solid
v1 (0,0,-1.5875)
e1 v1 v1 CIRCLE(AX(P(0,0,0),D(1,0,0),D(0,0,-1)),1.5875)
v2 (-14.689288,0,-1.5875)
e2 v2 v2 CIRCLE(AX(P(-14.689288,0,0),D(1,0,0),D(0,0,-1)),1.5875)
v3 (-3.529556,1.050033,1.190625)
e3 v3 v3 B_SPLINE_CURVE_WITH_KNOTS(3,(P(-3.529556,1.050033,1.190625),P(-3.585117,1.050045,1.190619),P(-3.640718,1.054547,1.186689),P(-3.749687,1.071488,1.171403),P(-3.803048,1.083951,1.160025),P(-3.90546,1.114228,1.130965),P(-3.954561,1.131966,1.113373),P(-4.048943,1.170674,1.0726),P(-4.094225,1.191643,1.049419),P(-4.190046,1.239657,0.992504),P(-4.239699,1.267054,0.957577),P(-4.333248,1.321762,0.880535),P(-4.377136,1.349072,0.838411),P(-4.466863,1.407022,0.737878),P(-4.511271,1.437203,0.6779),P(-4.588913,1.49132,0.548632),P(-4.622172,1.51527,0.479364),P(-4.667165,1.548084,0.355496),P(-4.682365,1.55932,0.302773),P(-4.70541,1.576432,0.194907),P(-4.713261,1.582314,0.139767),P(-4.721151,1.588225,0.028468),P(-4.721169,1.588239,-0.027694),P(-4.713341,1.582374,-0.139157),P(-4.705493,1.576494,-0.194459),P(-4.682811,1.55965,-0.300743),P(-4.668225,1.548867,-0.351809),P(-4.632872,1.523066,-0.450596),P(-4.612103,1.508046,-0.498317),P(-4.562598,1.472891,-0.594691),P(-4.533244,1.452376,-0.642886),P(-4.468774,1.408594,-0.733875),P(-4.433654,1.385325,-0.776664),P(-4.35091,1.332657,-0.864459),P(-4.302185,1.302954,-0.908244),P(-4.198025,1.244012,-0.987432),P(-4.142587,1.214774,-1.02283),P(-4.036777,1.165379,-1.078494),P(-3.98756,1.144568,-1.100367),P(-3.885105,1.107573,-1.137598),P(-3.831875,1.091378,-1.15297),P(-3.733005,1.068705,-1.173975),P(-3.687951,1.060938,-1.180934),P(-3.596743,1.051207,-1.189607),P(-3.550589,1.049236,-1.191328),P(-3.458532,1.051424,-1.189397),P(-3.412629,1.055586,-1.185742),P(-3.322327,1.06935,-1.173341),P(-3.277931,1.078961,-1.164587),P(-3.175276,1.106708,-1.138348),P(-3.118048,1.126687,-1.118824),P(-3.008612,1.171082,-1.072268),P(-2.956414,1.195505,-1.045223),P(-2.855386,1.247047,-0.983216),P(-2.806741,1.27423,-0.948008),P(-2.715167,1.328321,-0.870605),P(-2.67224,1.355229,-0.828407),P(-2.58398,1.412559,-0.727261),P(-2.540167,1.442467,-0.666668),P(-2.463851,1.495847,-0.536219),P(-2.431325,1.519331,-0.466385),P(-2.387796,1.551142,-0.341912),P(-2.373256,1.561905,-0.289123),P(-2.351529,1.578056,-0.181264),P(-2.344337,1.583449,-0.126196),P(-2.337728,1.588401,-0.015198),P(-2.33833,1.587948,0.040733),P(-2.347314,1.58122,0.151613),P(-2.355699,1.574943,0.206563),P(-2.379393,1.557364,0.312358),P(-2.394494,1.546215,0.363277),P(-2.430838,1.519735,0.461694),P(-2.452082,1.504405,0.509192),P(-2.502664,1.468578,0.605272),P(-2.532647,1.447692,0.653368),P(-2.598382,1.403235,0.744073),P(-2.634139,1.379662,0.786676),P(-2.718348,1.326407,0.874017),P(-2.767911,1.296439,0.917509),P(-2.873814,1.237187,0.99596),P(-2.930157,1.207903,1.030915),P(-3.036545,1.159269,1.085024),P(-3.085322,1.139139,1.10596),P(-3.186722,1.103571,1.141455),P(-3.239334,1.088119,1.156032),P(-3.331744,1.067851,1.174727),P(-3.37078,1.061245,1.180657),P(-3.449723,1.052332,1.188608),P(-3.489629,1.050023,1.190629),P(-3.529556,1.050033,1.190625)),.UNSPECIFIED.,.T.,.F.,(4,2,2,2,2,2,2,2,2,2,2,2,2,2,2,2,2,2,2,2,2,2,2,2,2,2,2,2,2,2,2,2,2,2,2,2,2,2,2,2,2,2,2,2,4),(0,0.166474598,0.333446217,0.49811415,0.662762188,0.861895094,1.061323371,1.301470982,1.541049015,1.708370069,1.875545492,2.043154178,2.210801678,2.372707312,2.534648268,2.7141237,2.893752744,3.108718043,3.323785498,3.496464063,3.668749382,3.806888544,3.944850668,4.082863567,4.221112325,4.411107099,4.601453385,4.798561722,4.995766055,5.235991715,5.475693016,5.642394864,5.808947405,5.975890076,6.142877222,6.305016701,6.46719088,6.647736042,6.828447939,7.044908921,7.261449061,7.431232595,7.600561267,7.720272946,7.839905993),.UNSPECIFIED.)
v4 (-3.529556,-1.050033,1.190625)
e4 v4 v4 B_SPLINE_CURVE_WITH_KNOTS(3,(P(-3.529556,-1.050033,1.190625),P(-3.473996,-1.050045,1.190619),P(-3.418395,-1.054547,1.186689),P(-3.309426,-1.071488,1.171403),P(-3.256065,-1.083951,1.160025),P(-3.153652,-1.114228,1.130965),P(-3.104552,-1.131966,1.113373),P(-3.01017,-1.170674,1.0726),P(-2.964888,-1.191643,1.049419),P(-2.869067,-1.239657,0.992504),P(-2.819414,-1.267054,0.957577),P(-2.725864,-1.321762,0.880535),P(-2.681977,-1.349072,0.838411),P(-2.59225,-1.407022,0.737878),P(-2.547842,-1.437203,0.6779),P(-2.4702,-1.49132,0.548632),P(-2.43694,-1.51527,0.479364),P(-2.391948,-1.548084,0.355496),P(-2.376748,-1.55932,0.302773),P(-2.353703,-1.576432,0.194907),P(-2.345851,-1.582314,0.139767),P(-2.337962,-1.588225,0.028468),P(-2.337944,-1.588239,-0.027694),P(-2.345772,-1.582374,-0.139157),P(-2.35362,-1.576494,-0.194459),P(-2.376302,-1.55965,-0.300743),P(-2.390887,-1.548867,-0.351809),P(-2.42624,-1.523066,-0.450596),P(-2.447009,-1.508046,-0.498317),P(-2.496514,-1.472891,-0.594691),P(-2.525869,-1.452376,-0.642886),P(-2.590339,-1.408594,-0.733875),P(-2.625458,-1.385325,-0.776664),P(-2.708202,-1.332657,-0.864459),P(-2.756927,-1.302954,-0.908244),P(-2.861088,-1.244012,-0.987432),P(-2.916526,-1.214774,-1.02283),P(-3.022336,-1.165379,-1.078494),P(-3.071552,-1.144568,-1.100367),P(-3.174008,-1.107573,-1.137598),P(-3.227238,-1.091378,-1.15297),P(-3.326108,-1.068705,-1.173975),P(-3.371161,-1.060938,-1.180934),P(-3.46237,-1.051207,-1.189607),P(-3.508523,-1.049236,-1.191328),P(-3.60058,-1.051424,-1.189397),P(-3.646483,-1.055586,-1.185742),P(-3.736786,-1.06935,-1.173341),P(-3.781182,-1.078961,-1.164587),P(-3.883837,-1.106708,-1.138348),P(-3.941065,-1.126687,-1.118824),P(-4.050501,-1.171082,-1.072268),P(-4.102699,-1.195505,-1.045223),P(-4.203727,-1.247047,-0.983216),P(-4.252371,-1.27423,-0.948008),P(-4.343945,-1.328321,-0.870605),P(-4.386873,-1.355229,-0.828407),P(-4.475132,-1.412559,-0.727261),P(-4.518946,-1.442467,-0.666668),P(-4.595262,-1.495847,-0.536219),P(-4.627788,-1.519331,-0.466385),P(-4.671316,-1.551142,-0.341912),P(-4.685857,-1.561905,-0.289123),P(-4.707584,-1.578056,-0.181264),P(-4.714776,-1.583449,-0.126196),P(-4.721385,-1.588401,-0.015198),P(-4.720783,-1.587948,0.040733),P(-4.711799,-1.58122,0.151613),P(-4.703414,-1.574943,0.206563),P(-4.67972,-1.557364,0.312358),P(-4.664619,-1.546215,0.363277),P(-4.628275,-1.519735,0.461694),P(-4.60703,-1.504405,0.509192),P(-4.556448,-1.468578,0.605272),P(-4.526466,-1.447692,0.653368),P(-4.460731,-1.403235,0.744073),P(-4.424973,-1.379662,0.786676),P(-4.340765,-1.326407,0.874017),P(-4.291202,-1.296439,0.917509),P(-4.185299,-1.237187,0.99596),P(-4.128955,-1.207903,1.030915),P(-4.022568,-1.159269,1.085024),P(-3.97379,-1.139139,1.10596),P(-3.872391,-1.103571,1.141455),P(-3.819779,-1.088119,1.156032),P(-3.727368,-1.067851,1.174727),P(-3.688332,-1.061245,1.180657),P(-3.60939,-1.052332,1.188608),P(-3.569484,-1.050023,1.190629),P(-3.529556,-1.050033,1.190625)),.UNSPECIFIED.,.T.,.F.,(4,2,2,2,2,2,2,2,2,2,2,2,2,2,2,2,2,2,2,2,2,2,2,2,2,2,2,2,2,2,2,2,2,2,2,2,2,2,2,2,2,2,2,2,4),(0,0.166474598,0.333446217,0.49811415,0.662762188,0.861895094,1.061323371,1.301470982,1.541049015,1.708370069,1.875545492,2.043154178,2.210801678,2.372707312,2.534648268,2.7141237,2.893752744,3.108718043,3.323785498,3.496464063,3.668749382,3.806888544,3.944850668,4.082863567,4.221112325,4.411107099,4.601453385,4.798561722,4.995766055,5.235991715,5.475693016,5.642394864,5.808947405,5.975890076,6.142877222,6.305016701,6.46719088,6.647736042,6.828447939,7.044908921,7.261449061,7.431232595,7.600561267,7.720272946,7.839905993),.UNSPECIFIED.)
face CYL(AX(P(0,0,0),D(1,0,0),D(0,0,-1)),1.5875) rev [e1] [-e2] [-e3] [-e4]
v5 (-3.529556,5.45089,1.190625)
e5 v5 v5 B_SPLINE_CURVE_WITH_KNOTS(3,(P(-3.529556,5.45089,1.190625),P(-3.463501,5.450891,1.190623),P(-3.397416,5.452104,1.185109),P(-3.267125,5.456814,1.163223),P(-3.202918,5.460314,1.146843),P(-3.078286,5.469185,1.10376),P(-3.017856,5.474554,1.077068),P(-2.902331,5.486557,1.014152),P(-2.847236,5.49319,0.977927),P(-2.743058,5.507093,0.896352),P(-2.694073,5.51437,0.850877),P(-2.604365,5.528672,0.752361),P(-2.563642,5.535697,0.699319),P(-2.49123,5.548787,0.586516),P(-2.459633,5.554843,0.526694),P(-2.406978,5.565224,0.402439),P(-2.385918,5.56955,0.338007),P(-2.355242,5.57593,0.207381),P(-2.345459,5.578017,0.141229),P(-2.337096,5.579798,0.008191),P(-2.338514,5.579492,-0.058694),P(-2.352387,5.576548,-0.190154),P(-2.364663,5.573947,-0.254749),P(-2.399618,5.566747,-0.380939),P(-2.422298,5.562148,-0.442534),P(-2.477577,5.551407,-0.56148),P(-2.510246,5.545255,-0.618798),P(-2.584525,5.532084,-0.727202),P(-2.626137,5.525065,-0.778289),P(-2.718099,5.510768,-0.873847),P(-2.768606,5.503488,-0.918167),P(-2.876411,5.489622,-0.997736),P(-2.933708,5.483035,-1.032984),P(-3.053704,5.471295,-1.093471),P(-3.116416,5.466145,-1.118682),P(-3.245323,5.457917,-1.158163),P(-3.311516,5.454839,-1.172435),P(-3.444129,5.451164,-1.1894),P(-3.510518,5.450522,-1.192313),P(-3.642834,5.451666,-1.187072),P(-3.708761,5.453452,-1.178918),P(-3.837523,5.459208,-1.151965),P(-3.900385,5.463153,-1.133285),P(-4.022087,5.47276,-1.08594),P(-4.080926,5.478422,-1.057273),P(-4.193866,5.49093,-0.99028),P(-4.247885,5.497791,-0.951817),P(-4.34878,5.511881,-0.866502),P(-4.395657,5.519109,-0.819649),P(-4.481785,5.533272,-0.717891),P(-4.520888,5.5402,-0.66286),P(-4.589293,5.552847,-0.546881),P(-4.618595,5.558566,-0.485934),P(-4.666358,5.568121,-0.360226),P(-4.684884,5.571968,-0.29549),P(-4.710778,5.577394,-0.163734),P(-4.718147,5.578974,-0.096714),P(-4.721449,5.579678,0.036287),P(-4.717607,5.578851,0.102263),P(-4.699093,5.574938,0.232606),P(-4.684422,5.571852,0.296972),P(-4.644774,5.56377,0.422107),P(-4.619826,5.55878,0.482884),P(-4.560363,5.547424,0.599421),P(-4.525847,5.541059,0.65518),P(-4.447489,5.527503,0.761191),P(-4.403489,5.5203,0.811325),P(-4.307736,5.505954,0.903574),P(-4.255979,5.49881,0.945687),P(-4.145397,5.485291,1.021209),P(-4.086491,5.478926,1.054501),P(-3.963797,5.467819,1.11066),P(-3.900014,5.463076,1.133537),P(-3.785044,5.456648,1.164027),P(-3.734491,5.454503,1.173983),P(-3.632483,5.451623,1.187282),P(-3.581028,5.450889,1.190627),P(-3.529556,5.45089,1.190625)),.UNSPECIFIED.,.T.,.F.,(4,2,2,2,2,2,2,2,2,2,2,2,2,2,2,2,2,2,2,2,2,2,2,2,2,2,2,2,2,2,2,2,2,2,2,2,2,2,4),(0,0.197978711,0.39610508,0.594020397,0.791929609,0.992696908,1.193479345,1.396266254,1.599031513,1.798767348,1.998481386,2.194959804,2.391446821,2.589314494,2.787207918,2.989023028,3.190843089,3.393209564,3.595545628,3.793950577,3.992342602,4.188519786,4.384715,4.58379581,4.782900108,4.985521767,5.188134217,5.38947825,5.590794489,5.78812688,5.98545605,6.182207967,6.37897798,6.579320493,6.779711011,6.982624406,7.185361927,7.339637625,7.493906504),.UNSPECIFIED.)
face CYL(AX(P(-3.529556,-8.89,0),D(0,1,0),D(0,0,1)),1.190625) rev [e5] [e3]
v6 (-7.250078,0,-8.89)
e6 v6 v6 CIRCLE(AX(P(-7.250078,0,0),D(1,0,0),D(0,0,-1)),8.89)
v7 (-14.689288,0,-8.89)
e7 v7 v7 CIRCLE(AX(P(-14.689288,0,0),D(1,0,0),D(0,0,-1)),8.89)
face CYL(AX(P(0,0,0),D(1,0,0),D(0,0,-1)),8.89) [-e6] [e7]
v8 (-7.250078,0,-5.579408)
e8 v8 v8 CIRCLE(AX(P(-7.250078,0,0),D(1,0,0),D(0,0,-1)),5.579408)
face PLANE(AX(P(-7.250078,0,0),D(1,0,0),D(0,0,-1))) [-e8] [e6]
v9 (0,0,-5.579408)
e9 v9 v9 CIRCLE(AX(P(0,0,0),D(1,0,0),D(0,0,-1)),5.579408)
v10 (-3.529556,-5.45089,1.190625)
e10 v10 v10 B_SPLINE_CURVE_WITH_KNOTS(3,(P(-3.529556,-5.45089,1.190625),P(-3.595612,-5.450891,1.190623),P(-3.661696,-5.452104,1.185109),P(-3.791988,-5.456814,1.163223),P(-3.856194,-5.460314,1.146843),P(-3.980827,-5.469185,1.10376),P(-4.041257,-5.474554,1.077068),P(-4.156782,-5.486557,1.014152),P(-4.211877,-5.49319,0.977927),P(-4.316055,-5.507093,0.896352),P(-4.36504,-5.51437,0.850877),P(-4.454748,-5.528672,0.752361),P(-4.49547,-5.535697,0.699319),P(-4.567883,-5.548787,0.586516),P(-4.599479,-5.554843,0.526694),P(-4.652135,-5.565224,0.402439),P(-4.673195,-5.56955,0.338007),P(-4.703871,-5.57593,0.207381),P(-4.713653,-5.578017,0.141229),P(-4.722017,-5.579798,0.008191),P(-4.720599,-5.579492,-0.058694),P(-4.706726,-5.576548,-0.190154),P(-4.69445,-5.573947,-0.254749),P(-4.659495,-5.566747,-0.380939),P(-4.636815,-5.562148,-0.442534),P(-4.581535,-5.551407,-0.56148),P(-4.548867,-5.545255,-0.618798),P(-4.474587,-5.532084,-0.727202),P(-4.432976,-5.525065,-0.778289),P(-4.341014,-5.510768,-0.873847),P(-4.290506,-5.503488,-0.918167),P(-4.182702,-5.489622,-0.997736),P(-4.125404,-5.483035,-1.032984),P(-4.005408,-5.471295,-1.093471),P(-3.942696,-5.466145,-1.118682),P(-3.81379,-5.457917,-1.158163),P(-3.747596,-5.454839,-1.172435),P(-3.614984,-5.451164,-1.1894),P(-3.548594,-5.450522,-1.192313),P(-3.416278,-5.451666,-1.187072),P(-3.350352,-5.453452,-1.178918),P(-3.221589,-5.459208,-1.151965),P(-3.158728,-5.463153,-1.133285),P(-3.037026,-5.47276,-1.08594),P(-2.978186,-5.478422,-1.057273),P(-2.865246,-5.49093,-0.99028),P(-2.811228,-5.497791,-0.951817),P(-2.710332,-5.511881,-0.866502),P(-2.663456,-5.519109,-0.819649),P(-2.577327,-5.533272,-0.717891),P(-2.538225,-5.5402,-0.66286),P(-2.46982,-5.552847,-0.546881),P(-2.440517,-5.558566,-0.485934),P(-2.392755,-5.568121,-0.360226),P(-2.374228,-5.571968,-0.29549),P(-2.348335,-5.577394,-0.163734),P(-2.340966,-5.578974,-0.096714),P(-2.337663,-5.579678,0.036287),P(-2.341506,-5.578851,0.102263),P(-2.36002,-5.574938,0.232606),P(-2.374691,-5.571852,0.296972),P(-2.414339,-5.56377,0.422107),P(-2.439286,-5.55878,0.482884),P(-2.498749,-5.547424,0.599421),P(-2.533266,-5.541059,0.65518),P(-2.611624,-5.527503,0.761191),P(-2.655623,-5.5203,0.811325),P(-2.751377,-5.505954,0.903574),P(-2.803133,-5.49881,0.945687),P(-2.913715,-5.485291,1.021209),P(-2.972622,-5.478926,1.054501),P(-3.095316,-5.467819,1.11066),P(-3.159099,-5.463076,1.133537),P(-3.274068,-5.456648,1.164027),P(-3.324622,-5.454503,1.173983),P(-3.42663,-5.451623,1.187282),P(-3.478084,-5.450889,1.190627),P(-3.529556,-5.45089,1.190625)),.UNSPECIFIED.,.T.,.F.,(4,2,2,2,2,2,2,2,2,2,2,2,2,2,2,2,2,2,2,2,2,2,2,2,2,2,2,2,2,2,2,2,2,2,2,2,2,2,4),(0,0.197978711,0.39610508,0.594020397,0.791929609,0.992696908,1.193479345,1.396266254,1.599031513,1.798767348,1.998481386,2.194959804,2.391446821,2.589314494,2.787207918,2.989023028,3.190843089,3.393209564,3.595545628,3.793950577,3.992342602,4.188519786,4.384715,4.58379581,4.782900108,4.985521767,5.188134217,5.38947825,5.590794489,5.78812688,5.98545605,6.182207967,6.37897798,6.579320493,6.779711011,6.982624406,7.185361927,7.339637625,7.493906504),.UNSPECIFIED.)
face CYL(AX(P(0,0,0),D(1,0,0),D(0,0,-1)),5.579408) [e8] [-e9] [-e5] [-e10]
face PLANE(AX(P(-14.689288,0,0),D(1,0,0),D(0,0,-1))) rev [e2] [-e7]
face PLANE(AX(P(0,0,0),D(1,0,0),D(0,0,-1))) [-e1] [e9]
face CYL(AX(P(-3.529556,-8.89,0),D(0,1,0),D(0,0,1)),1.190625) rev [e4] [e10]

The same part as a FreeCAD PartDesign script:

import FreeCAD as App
import Part
import Sketcher

V = App.Vector
Q = App.Units.Quantity


def add_polygon(sketch, points):
    """Adds a closed chain of lines whose ends are joined by coincident constraints."""
    first, n = sketch.GeometryCount, len(points)
    for a, b in zip(points, points[1:] + points[:1]):
        sketch.addGeometry(Part.LineSegment(App.Vector(*a, 0), App.Vector(*b, 0)), False)
    for i in range(n):
        sketch.addConstraint(Sketcher.Constraint("Coincident", first + i, 2, first + (i + 1) % n, 1))

doc = App.newDocument("Part")
body = doc.addObject("PartDesign::Body", "Body")

sketch1 = doc.addObject("Sketcher::SketchObject", "Sketch")
body.addObject(sketch1)
sketch1.AttachmentSupport = (doc.XY_Plane, [""])
sketch1.MapMode = "FlatFace"
add_polygon(sketch1, [(0, 1.5875), (0, 5.579408), (-7.250078, 5.579408), (-7.250078, 8.89), (-14.689288, 8.89), (-14.689288, 1.5875)])
sketch1.addConstraint([
    Sketcher.Constraint("Vertical", 0),
    Sketcher.Constraint("Horizontal", 1),
    Sketcher.Constraint("Vertical", 2),
    Sketcher.Constraint("Horizontal", 3),
    Sketcher.Constraint("Vertical", 4),
    Sketcher.Constraint("Horizontal", 5),
    Sketcher.Constraint("PointOnObject", 0, 2, -2),
    Sketcher.Constraint("DistanceY", -1, 1, 2, 2, Q("0.35 in")),
    Sketcher.Constraint("DistanceY", 4, 2, 4, 1, Q("0.2875 in")),
    Sketcher.Constraint("DistanceX", 3, 2, 3, 1, 7.43921),
    Sketcher.Constraint("DistanceX", 5, 1, 5, 2, 14.689288),
    Sketcher.Constraint("DistanceY", 0, 1, 0, 2, 3.991908),
])
revolution = doc.addObject("PartDesign::Revolution", "Revolution")
body.addObject(revolution)
revolution.Profile = sketch1
revolution.ReferenceAxis = (sketch1, ["H_Axis"])
revolution.Angle = 360

sketch2 = doc.addObject("Sketcher::SketchObject", "Sketch001")
body.addObject(sketch2)
sketch2.AttachmentSupport = (doc.XZ_Plane, [""])
sketch2.MapMode = "FlatFace"
sketch2.addGeometry(Part.Circle(V(-3.529556, 0, 0), V(0, 0, 1), 1.190625), False)
sketch2.addConstraint([
    Sketcher.Constraint("PointOnObject", 0, 3, -1),
    Sketcher.Constraint("Diameter", 0, Q("0.09375 in")),
    Sketcher.Constraint("DistanceX", 0, 3, -1, 1, 3.529556),
])
pocket1 = doc.addObject("PartDesign::Pocket", "Pocket")
body.addObject(pocket1)
pocket1.Profile = sketch2
pocket1.Type = "ThroughAll"
pocket1.Midplane = True

doc.recompute()
